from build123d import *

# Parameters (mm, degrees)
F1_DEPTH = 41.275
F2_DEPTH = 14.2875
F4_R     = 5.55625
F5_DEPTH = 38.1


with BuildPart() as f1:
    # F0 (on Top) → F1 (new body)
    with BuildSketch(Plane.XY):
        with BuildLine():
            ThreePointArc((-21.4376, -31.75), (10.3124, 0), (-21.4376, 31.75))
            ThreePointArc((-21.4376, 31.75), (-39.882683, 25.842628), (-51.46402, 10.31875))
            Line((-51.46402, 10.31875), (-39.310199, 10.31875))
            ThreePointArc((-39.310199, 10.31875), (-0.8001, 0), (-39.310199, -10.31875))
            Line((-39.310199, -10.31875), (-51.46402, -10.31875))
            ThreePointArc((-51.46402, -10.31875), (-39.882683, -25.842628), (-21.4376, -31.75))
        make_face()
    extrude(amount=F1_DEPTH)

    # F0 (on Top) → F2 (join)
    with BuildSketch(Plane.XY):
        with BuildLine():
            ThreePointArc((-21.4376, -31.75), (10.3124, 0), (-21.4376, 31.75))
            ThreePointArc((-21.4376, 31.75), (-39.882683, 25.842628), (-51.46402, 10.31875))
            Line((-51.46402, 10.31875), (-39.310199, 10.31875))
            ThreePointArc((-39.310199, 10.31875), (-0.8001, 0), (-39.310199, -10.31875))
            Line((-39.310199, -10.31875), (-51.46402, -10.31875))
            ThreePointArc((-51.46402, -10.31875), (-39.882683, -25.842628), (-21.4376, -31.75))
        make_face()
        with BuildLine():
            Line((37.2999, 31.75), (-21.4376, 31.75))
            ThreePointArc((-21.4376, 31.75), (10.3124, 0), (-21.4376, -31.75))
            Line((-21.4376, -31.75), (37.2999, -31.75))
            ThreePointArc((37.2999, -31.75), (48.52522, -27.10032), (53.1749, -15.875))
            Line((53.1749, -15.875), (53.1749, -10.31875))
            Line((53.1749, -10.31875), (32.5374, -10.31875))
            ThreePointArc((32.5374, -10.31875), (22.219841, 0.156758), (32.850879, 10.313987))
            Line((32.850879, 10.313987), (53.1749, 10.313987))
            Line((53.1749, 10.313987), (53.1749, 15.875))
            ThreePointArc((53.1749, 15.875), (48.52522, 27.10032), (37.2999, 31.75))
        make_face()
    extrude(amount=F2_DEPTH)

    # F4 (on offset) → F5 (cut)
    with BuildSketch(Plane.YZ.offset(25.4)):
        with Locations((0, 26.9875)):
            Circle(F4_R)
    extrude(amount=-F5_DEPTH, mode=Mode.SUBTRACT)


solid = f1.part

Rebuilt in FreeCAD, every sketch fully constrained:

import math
import FreeCAD as App
import Part
import Sketcher
Q = App.Units.Quantity

doc = App.newDocument("Part")
params = doc.addObject("Spreadsheet::Sheet", "Params")
for row, (alias, value) in enumerate([
    ("sketch1_radius", "1.25 in"),
    ("sketch1_radius2", "0.8125 in"),
    ("pad1_length", "1.625 in"),
    ("sketch2_radius", "1.25 in"),
    ("sketch2_radius2", "0.8125 in"),
    ("sketch2_radius3", "0.625 in"),
    ("sketch2_radius4", "0.40625 in"),
    ("sketch2_width", "2.3125 in"),
    ("pad2_length", "0.5625 in"),
    ("sketch3_diameter", "0.4375 in"),
    ("pocket1_length", "1.5 in"),
], start=1):
    params.set(f"A{row}", alias)
    params.set(f"B{row}", "=" + value)
    params.setAlias(f"B{row}", alias)

body = doc.addObject("PartDesign::Body", "Body")

# Sketch on XY plane
sketch1 = body.newObject("Sketcher::SketchObject", "Sketch")
sketch1.AttachmentSupport = (doc.getObject("XY_Plane"), [""])
sketch1.MapMode = "FlatFace"
sketch1.addGeometry([
    Part.ArcOfCircle(Part.Circle(App.Vector(-21, 0, 0), App.Vector(0, 0, 1), 32), math.radians(-90), math.radians(90)),  # 0
    Part.ArcOfCircle(Part.Circle(App.Vector(-21, 0, 0), App.Vector(0, 0, 1), 32), math.radians(90), math.radians(161)),  # 1
    Part.LineSegment(App.Vector(-51, 10, 0), App.Vector(-39, 10, 0)),  # 2
    Part.ArcOfCircle(Part.Circle(App.Vector(-21, 0, 0), App.Vector(0, 0, 1), 21), math.radians(-150), math.radians(150)),  # 3
    Part.LineSegment(App.Vector(-39, -10, 0), App.Vector(-51, -10, 0)),  # 4
    Part.ArcOfCircle(Part.Circle(App.Vector(-21, 0, 0), App.Vector(0, 0, 1), 32), math.radians(-161), math.radians(-90)),  # 5
], False)
sketch1.addConstraint([
    Sketcher.Constraint("Tangent", 0, 2, 1, 1),
    Sketcher.Constraint("Coincident", 1, 2, 2, 1),
    Sketcher.Constraint("Coincident", 2, 2, 3, 2),
    Sketcher.Constraint("Coincident", 3, 1, 4, 1),
    Sketcher.Constraint("Coincident", 4, 2, 5, 1),
    Sketcher.Constraint("Tangent", 5, 2, 0, 1),
    Sketcher.Constraint("Horizontal", 2),
    Sketcher.Constraint("Horizontal", 4),
    Sketcher.Constraint("Coincident", 3, 3, 0, 3),
    Sketcher.Constraint("Equal", 0, 1),
    Sketcher.Constraint("Equal", 1, 5),
    Sketcher.Constraint("Symmetric", 2, 2, 3, 1, -1),
    Sketcher.Constraint("Vertical", 5, 3, 0, 2),
    Sketcher.Constraint("Vertical", 0, 2, 5, 2),
    Sketcher.Constraint("Radius", 0, Q("1.25 in")),
    Sketcher.Constraint("Radius", 3, Q("0.8125 in")),
    Sketcher.Constraint("DistanceX", 0, 3, -1, 1, Q("0.844 in")),
    Sketcher.Constraint("DistanceY", -1, 1, 1, 2, Q("0.40625 in")),
])
sketch1.setExpression("Constraints[14]", "Params.sketch1_radius")
sketch1.setExpression("Constraints[15]", "Params.sketch1_radius2")
pad1 = body.newObject("PartDesign::Pad", "Pad")
pad1.Profile = sketch1
pad1.setExpression("Length", "Params.pad1_length")

# Sketch on XY plane
sketch2 = body.newObject("Sketcher::SketchObject", "Sketch001")
sketch2.AttachmentSupport = (doc.getObject("XY_Plane"), [""])
sketch2.MapMode = "FlatFace"
sketch2.addGeometry([
    Part.ArcOfCircle(Part.Circle(App.Vector(-21, 0, 0), App.Vector(0, 0, 1), 32), math.radians(90), math.radians(161)),  # 0
    Part.LineSegment(App.Vector(-51, 10, 0), App.Vector(-39, 10, 0)),  # 1
    Part.ArcOfCircle(Part.Circle(App.Vector(-21, 0, 0), App.Vector(0, 0, 1), 21), math.radians(-150), math.radians(150)),  # 2
    Part.LineSegment(App.Vector(-39, -10, 0), App.Vector(-51, -10, 0)),  # 3
    Part.ArcOfCircle(Part.Circle(App.Vector(-21, 0, 0), App.Vector(0, 0, 1), 32), math.radians(-161), math.radians(-90)),  # 4
    Part.LineSegment(App.Vector(-21, -32, 0), App.Vector(37, -32, 0)),  # 5
    Part.ArcOfCircle(Part.Circle(App.Vector(37, -16, 0), App.Vector(0, 0, 1), 16), math.radians(-90), math.radians(0)),  # 6
    Part.LineSegment(App.Vector(53, -16, 0), App.Vector(53, -10, 0)),  # 7
    Part.LineSegment(App.Vector(53, -10, 0), App.Vector(33, -10, 0)),  # 8
    Part.ArcOfCircle(Part.Circle(App.Vector(33, 0, 0), App.Vector(0, 0, 1), 10), math.radians(88), math.radians(270)),  # 9
    Part.LineSegment(App.Vector(33, 10, 0), App.Vector(53, 10, 0)),  # 10
    Part.LineSegment(App.Vector(53, 10, 0), App.Vector(53, 16, 0)),  # 11
    Part.ArcOfCircle(Part.Circle(App.Vector(37, 16, 0), App.Vector(0, 0, 1), 16), math.radians(0), math.radians(90)),  # 12
    Part.LineSegment(App.Vector(37, 32, 0), App.Vector(-21, 32, 0)),  # 13
], False)
sketch2.addConstraint([
    Sketcher.Constraint("Coincident", 0, 2, 1, 1),
    Sketcher.Constraint("Coincident", 1, 2, 2, 2),
    Sketcher.Constraint("Coincident", 2, 1, 3, 1),
    Sketcher.Constraint("Coincident", 3, 2, 4, 1),
    Sketcher.Constraint("Tangent", 4, 2, 5, 1),
    Sketcher.Constraint("Tangent", 5, 2, 6, 1),
    Sketcher.Constraint("Tangent", 6, 2, 7, 1),
    Sketcher.Constraint("Coincident", 7, 2, 8, 1),
    Sketcher.Constraint("Tangent", 8, 2, 9, 2),
    Sketcher.Constraint("Coincident", 9, 1, 10, 1),
    Sketcher.Constraint("Coincident", 10, 2, 11, 1),
    Sketcher.Constraint("Tangent", 11, 2, 12, 1),
    Sketcher.Constraint("Tangent", 12, 2, 13, 1),
    Sketcher.Constraint("Tangent", 13, 2, 0, 1),
    Sketcher.Constraint("Horizontal", 1),
    Sketcher.Constraint("Horizontal", 3),
    Sketcher.Constraint("Horizontal", 5),
    Sketcher.Constraint("Vertical", 7),
    Sketcher.Constraint("Horizontal", 8),
    Sketcher.Constraint("Horizontal", 10),
    Sketcher.Constraint("Vertical", 11),
    Sketcher.Constraint("Horizontal", 13),
    Sketcher.Constraint("Coincident", 2, 3, 0, 3),
    Sketcher.Constraint("Coincident", 4, 3, 0, 3),
    Sketcher.Constraint("Equal", 0, 4),
    Sketcher.Constraint("Equal", 6, 12),
    Sketcher.Constraint("Symmetric", 6, 3, 12, 3, -1),
    Sketcher.Constraint("PointOnObject", 9, 3, -1),
    Sketcher.Constraint("Horizontal", 3, 2, 7, 2),
    Sketcher.Constraint("Vertical", 1, 2, 2, 1),
    Sketcher.Constraint("Radius", 0, Q("1.25 in")),
    Sketcher.Constraint("Radius", 2, Q("0.8125 in")),
    Sketcher.Constraint("Radius", 6, Q("0.625 in")),
    Sketcher.Constraint("Radius", 9, Q("0.40625 in")),
    Sketcher.Constraint("DistanceX", 5, 1, 5, 2, Q("2.3125 in")),
    Sketcher.Constraint("DistanceX", 8, 2, 8, 1, Q("0.8125 in")),
    Sketcher.Constraint("DistanceX", 0, 3, -1, 1, Q("0.844 in")),
    Sketcher.Constraint("DistanceX", 10, 1, 10, 2, 20.324021),
])
sketch2.setExpression("Constraints[30]", "Params.sketch2_radius")
sketch2.setExpression("Constraints[31]", "Params.sketch2_radius2")
sketch2.setExpression("Constraints[32]", "Params.sketch2_radius3")
sketch2.setExpression("Constraints[33]", "Params.sketch2_radius4")
sketch2.setExpression("Constraints[34]", "Params.sketch2_width")
pad2 = body.newObject("PartDesign::Pad", "Pad001")
pad2.Profile = sketch2
pad2.setExpression("Length", "Params.pad2_length")

# Sketch on YZ plane
sketch3 = body.newObject("Sketcher::SketchObject", "Sketch002")
sketch3.AttachmentSupport = (doc.getObject("YZ_Plane"), [""])
sketch3.MapMode = "FlatFace"
sketch3.AttachmentOffset = App.Placement(App.Vector(0, 0, 1 * 25.4), App.Rotation())
sketch3.addGeometry(Part.Circle(App.Vector(0, 27, 0), App.Vector(0, 0, 1), 6), False)
sketch3.addConstraint([
    Sketcher.Constraint("PointOnObject", 0, 3, -2),
    Sketcher.Constraint("Diameter", 0, Q("0.4375 in")),
    Sketcher.Constraint("DistanceY", -1, 1, 0, 3, Q("1.0625 in")),
])
sketch3.setExpression("Constraints[1]", "Params.sketch3_diameter")
pocket1 = body.newObject("PartDesign::Pocket", "Pocket")
pocket1.Profile = sketch3
pocket1.setExpression("Length", "Params.pocket1_length")

doc.recompute()
